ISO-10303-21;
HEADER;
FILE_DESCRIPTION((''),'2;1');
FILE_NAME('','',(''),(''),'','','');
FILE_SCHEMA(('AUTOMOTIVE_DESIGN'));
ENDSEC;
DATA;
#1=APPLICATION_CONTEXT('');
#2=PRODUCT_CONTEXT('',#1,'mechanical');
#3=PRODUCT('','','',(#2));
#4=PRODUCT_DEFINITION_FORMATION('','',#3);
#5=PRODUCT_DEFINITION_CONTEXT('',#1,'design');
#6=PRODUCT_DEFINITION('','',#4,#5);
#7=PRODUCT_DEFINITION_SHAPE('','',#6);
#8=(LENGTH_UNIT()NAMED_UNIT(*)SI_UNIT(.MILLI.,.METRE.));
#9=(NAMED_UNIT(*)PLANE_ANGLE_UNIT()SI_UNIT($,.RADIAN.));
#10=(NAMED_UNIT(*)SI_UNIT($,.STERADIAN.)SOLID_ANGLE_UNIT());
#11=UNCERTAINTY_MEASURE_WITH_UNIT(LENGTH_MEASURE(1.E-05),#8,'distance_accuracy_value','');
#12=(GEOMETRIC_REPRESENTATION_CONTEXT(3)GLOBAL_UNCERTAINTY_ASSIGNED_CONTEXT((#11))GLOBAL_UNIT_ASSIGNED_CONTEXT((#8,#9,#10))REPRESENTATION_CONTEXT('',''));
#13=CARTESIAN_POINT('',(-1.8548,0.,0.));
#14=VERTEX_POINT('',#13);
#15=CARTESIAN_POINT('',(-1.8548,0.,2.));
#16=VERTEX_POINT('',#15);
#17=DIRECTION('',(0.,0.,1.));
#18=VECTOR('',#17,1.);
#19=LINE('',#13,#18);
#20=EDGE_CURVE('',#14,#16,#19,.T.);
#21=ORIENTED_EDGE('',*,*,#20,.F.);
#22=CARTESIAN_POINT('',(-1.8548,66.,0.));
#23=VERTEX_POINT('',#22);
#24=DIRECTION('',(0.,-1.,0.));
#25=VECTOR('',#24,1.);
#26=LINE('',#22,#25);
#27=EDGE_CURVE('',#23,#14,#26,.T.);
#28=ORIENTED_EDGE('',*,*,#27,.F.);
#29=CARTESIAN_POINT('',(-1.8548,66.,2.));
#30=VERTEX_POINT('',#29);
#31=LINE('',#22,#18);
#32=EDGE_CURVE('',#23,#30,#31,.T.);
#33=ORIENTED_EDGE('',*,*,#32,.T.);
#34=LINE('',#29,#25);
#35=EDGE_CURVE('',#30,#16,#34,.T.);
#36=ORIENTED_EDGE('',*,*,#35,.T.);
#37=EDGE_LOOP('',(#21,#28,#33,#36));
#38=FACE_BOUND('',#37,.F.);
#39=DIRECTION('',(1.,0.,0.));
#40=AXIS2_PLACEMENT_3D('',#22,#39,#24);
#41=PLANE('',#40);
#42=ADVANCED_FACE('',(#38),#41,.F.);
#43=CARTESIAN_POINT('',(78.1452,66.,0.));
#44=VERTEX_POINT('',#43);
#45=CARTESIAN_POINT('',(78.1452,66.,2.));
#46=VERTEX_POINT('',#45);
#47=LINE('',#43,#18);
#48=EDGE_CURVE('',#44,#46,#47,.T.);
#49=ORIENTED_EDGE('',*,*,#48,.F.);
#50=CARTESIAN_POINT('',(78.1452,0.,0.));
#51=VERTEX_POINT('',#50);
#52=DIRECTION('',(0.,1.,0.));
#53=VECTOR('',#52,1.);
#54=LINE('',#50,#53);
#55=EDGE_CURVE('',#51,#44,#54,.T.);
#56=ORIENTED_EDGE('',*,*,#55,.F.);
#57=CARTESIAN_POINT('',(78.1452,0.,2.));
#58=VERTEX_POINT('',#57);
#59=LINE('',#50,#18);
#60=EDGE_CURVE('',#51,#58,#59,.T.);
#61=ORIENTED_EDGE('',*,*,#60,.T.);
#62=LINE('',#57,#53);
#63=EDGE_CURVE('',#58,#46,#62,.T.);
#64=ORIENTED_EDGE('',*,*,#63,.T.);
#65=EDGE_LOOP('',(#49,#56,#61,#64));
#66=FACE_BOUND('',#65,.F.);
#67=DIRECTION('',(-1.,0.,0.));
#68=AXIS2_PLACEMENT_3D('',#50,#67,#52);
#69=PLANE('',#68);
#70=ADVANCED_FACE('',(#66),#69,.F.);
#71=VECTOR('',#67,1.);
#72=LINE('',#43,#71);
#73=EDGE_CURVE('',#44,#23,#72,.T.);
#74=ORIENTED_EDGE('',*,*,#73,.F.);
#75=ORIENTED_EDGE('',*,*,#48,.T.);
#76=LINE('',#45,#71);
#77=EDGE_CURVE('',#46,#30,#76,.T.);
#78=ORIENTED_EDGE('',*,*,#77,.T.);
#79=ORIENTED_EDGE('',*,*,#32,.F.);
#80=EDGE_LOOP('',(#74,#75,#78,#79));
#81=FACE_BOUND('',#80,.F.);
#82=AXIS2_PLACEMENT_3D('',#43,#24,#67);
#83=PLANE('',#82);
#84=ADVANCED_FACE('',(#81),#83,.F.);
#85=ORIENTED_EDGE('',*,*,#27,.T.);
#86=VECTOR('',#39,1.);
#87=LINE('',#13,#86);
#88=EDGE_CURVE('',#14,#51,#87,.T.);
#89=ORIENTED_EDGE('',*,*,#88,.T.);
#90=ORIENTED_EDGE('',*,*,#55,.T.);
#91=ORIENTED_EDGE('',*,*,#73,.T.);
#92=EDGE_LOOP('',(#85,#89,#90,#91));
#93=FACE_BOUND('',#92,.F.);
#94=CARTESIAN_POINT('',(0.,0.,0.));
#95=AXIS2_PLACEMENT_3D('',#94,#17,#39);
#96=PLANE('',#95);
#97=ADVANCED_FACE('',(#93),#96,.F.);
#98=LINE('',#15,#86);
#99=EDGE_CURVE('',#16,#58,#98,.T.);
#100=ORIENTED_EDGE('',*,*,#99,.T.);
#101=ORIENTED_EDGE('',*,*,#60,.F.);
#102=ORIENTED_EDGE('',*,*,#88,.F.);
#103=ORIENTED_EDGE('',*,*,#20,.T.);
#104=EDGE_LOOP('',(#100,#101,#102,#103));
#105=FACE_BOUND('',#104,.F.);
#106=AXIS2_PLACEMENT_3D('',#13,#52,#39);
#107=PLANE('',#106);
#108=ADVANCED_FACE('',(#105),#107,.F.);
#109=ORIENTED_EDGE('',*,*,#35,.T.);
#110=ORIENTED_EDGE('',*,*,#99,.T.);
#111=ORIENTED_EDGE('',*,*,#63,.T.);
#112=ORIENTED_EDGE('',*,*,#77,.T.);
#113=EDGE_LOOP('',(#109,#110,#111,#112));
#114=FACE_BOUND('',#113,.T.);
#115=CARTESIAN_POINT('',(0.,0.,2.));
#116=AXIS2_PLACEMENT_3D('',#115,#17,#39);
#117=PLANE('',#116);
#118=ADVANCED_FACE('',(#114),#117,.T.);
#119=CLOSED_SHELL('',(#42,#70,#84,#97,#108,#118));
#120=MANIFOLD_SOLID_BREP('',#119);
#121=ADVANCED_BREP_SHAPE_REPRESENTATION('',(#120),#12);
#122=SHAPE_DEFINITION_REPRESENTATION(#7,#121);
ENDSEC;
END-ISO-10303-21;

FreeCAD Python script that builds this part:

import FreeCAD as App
import Part
import Sketcher

V = App.Vector
Q = App.Units.Quantity


def add_polygon(sketch, points):
    """Adds a closed chain of lines whose ends are joined by coincident constraints."""
    first, n = sketch.GeometryCount, len(points)
    for a, b in zip(points, points[1:] + points[:1]):
        sketch.addGeometry(Part.LineSegment(App.Vector(*a, 0), App.Vector(*b, 0)), False)
    for i in range(n):
        sketch.addConstraint(Sketcher.Constraint("Coincident", first + i, 2, first + (i + 1) % n, 1))

doc = App.newDocument("Part")
body = doc.addObject("PartDesign::Body", "Body")

# Sketch on XY plane
sketch1 = body.newObject("Sketcher::SketchObject", "Sketch")
sketch1.AttachmentSupport = (doc.getObject("XY_Plane"), [""])
sketch1.MapMode = "FlatFace"
add_polygon(sketch1, [(-1.8548, 66), (-1.8548, 0), (78.1452, 0), (78.1452, 66)])  # lines 0-3
sketch1.addConstraint([
    Sketcher.Constraint("Vertical", 0),
    Sketcher.Constraint("Horizontal", 1),
    Sketcher.Constraint("Vertical", 2),
    Sketcher.Constraint("Horizontal", 3),
    Sketcher.Constraint("PointOnObject", 0, 2, -1),
    Sketcher.Constraint("DistanceX", 1, 1, 1, 2, Q("80 mm")),
    Sketcher.Constraint("DistanceY", 0, 2, 0, 1, Q("66 mm")),
    Sketcher.Constraint("DistanceX", 0, 2, -1, 1, Q("1.8548 mm")),
])
pad1 = body.newObject("PartDesign::Pad", "Pad")
pad1.Profile = sketch1
pad1.Length = 2

doc.recompute()
